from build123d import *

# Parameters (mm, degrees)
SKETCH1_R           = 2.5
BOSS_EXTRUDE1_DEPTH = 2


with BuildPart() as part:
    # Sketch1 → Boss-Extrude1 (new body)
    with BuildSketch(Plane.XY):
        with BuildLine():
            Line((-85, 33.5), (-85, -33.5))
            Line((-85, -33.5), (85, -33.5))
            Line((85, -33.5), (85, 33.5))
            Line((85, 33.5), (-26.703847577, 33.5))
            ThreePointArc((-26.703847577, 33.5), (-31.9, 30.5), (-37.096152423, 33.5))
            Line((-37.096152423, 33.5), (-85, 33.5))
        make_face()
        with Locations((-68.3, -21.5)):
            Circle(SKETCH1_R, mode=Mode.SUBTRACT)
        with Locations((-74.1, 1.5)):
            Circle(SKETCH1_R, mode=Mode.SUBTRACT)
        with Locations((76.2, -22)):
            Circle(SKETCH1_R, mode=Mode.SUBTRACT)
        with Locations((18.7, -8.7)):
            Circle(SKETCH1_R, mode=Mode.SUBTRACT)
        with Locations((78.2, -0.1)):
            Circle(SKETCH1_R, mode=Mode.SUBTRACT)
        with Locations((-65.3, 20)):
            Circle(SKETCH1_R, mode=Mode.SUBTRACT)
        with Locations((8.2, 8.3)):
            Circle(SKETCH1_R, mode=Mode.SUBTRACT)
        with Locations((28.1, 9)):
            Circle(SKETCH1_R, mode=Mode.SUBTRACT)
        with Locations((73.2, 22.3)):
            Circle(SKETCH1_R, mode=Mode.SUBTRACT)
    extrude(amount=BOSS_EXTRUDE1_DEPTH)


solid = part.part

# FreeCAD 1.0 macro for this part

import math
import FreeCAD as App
import Part
import Sketcher

V = App.Vector

doc = App.newDocument("Part")
body = doc.addObject("PartDesign::Body", "Body")

# Sketch on XY plane
sketch1 = body.newObject("Sketcher::SketchObject", "Sketch")
sketch1.AttachmentSupport = (doc.getObject("XY_Plane"), [""])
sketch1.MapMode = "FlatFace"
sketch1.addGeometry([
    Part.LineSegment(V(-85, 33.5, 0), V(-85, -33.5, 0)),  # 0
    Part.LineSegment(V(-85, -33.5, 0), V(85, -33.5, 0)),  # 1
    Part.LineSegment(V(85, -33.5, 0), V(85, 33.5, 0)),  # 2
    Part.LineSegment(V(85, 33.5, 0), V(-26.703848, 33.5, 0)),  # 3
    Part.ArcOfCircle(Part.Circle(V(-31.9, 36.5, 0), V(0, 0, 1), 6), math.radians(-150), math.radians(-30)),  # 4
    Part.LineSegment(V(-37.096152, 33.5, 0), V(-85, 33.5, 0)),  # 5
    Part.Circle(V(-68.3, -21.5, 0), V(0, 0, 1), 2.5),  # 6
    Part.Circle(V(76.2, -22, 0), V(0, 0, 1), 2.5),  # 7
    Part.Circle(V(18.7, -8.7, 0), V(0, 0, 1), 2.5),  # 8
    Part.Circle(V(78.2, -0.1, 0), V(0, 0, 1), 2.5),  # 9
    Part.Circle(V(-74.1, 1.5, 0), V(0, 0, 1), 2.5),  # 10
    Part.Circle(V(-65.3, 20, 0), V(0, 0, 1), 2.5),  # 11
    Part.Circle(V(8.2, 8.3, 0), V(0, 0, 1), 2.5),  # 12
    Part.Circle(V(28.1, 9, 0), V(0, 0, 1), 2.5),  # 13
    Part.Circle(V(73.2, 22.3, 0), V(0, 0, 1), 2.5),  # 14
], False)
sketch1.addConstraint([
    Sketcher.Constraint("Coincident", 0, 2, 1, 1),
    Sketcher.Constraint("Coincident", 1, 2, 2, 1),
    Sketcher.Constraint("Coincident", 2, 2, 3, 1),
    Sketcher.Constraint("Coincident", 3, 2, 4, 2),
    Sketcher.Constraint("Coincident", 4, 1, 5, 1),
    Sketcher.Constraint("Coincident", 5, 2, 0, 1),
    Sketcher.Constraint("Vertical", 0),
    Sketcher.Constraint("Horizontal", 1),
    Sketcher.Constraint("Vertical", 2),
    Sketcher.Constraint("Horizontal", 3),
    Sketcher.Constraint("Horizontal", 5),
    Sketcher.Constraint("Equal", 6, 7),
    Sketcher.Constraint("Equal", 7, 8),
    Sketcher.Constraint("Equal", 8, 9),
    Sketcher.Constraint("Equal", 9, 10),
    Sketcher.Constraint("Equal", 10, 11),
    Sketcher.Constraint("Equal", 11, 12),
    Sketcher.Constraint("Equal", 12, 13),
    Sketcher.Constraint("Equal", 13, 14),
    Sketcher.Constraint("Symmetric", 0, 2, 2, 2, -1, 1),
    Sketcher.Constraint("Horizontal", 3, 2, 4, 1),
    Sketcher.Constraint("Diameter", 6, 5.0),
    Sketcher.Constraint("Radius", 4, 6.0),
    Sketcher.Constraint("DistanceX", 1, 1, 1, 2, 170.0),
    Sketcher.Constraint("DistanceY", 0, 2, 0, 1, 67.0),
    Sketcher.Constraint("DistanceY", 7, 3, -1, 1, 22.0),
    Sketcher.Constraint("DistanceY", -1, 1, 11, 3, 20.0),
    Sketcher.Constraint("DistanceY", -1, 1, 13, 3, 9.0),
    Sketcher.Constraint("DistanceY", 6, 3, 4, 3, 58.0),
    Sketcher.Constraint("DistanceX", 6, 3, 8, 3, 87.0),
    Sketcher.Constraint("DistanceX", 7, 3, 9, 3, 2.0),
    Sketcher.Constraint("DistanceY", 6, 3, 10, 3, 23.0),
    Sketcher.Constraint("DistanceX", 6, 3, 11, 3, 3.0),
    Sketcher.Constraint("DistanceY", 8, 3, 12, 3, 17.0),
    Sketcher.Constraint("DistanceX", 12, 3, 9, 3, 70.0),
    Sketcher.Constraint("DistanceX", 4, 3, 13, 3, 60.0),
    Sketcher.Constraint("DistanceX", 14, 3, 9, 3, 5.0),
    Sketcher.Constraint("DistanceY", 8, 3, 14, 3, 31.0),
    Sketcher.Constraint("DistanceY", 0, 2, 6, 3, 12.0),
    Sketcher.Constraint("DistanceX", 4, 3, -1, 1, 31.9),
    Sketcher.Constraint("DistanceX", 6, 3, -1, 1, 68.3),
    Sketcher.Constraint("DistanceX", -1, 1, 7, 3, 76.2),
    Sketcher.Constraint("DistanceY", 8, 3, -1, 1, 8.7),
    Sketcher.Constraint("DistanceY", 9, 3, -1, 1, 0.1),
    Sketcher.Constraint("DistanceX", 10, 3, -1, 1, 74.1),
])
pad1 = body.newObject("PartDesign::Pad", "Pad")
pad1.Profile = sketch1
pad1.Length = 2

doc.recompute()
